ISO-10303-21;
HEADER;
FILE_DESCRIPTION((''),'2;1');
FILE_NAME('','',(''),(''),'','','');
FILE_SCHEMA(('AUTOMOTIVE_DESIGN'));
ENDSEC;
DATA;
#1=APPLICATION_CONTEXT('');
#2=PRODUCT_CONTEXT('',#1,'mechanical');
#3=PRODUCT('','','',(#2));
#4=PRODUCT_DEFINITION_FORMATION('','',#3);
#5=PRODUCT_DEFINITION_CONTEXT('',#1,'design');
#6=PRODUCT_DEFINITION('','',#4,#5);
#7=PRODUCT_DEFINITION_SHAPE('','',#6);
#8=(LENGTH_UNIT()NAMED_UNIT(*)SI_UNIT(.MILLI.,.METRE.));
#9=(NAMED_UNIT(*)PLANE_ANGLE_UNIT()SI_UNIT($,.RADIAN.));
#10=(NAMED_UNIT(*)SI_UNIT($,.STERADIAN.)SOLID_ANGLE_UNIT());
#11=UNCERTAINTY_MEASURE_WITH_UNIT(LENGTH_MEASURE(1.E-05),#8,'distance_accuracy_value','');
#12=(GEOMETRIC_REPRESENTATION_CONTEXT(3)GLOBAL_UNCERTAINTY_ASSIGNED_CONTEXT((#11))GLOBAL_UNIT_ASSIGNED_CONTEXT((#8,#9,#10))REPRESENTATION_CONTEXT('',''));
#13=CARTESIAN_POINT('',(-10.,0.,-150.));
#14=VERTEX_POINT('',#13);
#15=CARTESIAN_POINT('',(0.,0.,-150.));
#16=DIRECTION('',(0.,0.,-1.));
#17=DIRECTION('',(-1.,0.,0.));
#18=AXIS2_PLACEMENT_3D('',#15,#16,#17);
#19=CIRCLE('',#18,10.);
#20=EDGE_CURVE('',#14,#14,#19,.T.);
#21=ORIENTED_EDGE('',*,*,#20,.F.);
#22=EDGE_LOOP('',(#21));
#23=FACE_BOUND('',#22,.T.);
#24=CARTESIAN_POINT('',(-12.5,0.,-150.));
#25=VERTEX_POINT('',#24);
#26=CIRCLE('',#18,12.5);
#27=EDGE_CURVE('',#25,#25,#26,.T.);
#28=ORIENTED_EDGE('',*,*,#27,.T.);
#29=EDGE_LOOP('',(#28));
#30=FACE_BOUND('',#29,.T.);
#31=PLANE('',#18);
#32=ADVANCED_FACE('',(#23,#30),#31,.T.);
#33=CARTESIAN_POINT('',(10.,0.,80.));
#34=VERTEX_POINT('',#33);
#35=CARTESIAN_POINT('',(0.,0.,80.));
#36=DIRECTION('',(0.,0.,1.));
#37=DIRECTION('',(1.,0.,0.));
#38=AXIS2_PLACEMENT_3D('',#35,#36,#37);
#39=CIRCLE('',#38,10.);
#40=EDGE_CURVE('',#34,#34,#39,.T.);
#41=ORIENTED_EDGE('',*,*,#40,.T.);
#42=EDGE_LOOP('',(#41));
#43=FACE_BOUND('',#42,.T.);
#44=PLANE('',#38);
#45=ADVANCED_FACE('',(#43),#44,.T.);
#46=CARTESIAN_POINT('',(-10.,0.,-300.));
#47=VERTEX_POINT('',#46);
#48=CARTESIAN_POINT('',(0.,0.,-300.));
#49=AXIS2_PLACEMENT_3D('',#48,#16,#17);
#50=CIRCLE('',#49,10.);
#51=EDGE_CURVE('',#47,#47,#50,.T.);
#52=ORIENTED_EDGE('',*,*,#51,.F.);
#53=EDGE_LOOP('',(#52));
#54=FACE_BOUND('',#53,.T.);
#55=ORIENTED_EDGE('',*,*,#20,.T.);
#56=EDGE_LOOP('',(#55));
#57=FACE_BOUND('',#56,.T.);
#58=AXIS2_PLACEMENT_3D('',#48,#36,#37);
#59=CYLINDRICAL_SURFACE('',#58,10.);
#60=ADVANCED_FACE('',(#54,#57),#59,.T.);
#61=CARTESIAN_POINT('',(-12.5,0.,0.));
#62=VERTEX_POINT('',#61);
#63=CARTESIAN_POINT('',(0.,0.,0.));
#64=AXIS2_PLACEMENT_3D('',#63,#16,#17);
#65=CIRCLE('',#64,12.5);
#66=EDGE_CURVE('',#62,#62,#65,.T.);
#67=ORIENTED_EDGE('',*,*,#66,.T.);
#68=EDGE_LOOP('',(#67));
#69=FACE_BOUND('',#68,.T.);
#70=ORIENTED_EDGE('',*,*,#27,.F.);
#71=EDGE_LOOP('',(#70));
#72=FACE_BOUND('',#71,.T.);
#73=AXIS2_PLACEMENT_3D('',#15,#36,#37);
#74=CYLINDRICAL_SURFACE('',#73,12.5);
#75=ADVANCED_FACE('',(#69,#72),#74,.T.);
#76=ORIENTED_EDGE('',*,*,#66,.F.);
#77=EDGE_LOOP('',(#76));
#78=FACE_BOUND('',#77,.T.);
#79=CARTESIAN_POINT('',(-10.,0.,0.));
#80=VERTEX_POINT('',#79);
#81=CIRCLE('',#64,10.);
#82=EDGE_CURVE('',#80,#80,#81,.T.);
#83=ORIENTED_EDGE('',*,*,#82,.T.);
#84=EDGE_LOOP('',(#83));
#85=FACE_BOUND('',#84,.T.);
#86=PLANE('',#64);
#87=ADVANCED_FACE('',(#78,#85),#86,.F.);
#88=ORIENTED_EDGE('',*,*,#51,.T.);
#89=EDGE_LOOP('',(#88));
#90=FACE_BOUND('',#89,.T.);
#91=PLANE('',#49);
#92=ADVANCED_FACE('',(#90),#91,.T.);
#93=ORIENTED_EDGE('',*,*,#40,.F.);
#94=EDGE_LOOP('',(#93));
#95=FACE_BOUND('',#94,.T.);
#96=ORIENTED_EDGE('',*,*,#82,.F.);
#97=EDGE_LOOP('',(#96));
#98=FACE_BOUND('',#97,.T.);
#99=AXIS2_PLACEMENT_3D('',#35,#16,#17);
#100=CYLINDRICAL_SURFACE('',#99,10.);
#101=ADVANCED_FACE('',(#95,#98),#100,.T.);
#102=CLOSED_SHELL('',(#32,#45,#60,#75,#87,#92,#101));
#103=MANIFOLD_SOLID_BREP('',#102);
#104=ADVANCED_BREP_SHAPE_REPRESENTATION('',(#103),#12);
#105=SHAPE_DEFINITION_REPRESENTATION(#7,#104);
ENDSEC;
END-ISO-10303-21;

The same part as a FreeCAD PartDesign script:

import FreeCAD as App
import Part
import Sketcher
from FreeCAD import Vector
Q = App.Units.Quantity

doc = App.newDocument("Part")
body = doc.addObject("PartDesign::Body", "Body")

# Sketch on XY plane
sketch1 = doc.addObject("Sketcher::SketchObject", "Sketch")
body.addObject(sketch1)
sketch1.AttachmentSupport = (doc.XY_Plane, [""])
sketch1.MapMode = "FlatFace"
sketch1.addGeometry(Part.Circle(Vector(0, 0, 0), Vector(0, 0, 1), 10), False)
sketch1.addConstraint(Sketcher.Constraint("Coincident", 0, 3, -1, 1))
sketch1.addConstraint(Sketcher.Constraint("Diameter", 0, Q("20 mm")))
pad1 = doc.addObject("PartDesign::Pad", "Pad")
body.addObject(pad1)
pad1.Profile = sketch1
pad1.Length = 80

# Sketch on XY plane
sketch2 = doc.addObject("Sketcher::SketchObject", "Sketch001")
body.addObject(sketch2)
sketch2.AttachmentSupport = (doc.XY_Plane, [""])
sketch2.MapMode = "FlatFace"
sketch2.addGeometry(Part.Circle(Vector(0, 0, 0), Vector(0, 0, 1), 12.5), False)
sketch2.addConstraint(Sketcher.Constraint("Coincident", 0, 3, -1, 1))
sketch2.addConstraint(Sketcher.Constraint("Diameter", 0, Q("25 mm")))
pad2 = doc.addObject("PartDesign::Pad", "Pad001")
body.addObject(pad2)
pad2.Profile = sketch2
pad2.Length = 150
pad2.Reversed = True

# Sketch on XY plane
sketch3 = doc.addObject("Sketcher::SketchObject", "Sketch002")
body.addObject(sketch3)
sketch3.AttachmentSupport = (doc.XY_Plane, [""])
sketch3.MapMode = "FlatFace"
sketch3.AttachmentOffset = App.Placement(Vector(0, 0, -150), App.Rotation())
sketch3.addGeometry(Part.Circle(Vector(0, 0, 0), Vector(0, 0, 1), 10), False)
sketch3.addConstraint(Sketcher.Constraint("Coincident", 0, 3, -1, 1))
sketch3.addConstraint(Sketcher.Constraint("Diameter", 0, Q("20 mm")))
pad3 = doc.addObject("PartDesign::Pad", "Pad002")
body.addObject(pad3)
pad3.Profile = sketch3
pad3.Length = 150
pad3.Reversed = True

doc.recompute()
